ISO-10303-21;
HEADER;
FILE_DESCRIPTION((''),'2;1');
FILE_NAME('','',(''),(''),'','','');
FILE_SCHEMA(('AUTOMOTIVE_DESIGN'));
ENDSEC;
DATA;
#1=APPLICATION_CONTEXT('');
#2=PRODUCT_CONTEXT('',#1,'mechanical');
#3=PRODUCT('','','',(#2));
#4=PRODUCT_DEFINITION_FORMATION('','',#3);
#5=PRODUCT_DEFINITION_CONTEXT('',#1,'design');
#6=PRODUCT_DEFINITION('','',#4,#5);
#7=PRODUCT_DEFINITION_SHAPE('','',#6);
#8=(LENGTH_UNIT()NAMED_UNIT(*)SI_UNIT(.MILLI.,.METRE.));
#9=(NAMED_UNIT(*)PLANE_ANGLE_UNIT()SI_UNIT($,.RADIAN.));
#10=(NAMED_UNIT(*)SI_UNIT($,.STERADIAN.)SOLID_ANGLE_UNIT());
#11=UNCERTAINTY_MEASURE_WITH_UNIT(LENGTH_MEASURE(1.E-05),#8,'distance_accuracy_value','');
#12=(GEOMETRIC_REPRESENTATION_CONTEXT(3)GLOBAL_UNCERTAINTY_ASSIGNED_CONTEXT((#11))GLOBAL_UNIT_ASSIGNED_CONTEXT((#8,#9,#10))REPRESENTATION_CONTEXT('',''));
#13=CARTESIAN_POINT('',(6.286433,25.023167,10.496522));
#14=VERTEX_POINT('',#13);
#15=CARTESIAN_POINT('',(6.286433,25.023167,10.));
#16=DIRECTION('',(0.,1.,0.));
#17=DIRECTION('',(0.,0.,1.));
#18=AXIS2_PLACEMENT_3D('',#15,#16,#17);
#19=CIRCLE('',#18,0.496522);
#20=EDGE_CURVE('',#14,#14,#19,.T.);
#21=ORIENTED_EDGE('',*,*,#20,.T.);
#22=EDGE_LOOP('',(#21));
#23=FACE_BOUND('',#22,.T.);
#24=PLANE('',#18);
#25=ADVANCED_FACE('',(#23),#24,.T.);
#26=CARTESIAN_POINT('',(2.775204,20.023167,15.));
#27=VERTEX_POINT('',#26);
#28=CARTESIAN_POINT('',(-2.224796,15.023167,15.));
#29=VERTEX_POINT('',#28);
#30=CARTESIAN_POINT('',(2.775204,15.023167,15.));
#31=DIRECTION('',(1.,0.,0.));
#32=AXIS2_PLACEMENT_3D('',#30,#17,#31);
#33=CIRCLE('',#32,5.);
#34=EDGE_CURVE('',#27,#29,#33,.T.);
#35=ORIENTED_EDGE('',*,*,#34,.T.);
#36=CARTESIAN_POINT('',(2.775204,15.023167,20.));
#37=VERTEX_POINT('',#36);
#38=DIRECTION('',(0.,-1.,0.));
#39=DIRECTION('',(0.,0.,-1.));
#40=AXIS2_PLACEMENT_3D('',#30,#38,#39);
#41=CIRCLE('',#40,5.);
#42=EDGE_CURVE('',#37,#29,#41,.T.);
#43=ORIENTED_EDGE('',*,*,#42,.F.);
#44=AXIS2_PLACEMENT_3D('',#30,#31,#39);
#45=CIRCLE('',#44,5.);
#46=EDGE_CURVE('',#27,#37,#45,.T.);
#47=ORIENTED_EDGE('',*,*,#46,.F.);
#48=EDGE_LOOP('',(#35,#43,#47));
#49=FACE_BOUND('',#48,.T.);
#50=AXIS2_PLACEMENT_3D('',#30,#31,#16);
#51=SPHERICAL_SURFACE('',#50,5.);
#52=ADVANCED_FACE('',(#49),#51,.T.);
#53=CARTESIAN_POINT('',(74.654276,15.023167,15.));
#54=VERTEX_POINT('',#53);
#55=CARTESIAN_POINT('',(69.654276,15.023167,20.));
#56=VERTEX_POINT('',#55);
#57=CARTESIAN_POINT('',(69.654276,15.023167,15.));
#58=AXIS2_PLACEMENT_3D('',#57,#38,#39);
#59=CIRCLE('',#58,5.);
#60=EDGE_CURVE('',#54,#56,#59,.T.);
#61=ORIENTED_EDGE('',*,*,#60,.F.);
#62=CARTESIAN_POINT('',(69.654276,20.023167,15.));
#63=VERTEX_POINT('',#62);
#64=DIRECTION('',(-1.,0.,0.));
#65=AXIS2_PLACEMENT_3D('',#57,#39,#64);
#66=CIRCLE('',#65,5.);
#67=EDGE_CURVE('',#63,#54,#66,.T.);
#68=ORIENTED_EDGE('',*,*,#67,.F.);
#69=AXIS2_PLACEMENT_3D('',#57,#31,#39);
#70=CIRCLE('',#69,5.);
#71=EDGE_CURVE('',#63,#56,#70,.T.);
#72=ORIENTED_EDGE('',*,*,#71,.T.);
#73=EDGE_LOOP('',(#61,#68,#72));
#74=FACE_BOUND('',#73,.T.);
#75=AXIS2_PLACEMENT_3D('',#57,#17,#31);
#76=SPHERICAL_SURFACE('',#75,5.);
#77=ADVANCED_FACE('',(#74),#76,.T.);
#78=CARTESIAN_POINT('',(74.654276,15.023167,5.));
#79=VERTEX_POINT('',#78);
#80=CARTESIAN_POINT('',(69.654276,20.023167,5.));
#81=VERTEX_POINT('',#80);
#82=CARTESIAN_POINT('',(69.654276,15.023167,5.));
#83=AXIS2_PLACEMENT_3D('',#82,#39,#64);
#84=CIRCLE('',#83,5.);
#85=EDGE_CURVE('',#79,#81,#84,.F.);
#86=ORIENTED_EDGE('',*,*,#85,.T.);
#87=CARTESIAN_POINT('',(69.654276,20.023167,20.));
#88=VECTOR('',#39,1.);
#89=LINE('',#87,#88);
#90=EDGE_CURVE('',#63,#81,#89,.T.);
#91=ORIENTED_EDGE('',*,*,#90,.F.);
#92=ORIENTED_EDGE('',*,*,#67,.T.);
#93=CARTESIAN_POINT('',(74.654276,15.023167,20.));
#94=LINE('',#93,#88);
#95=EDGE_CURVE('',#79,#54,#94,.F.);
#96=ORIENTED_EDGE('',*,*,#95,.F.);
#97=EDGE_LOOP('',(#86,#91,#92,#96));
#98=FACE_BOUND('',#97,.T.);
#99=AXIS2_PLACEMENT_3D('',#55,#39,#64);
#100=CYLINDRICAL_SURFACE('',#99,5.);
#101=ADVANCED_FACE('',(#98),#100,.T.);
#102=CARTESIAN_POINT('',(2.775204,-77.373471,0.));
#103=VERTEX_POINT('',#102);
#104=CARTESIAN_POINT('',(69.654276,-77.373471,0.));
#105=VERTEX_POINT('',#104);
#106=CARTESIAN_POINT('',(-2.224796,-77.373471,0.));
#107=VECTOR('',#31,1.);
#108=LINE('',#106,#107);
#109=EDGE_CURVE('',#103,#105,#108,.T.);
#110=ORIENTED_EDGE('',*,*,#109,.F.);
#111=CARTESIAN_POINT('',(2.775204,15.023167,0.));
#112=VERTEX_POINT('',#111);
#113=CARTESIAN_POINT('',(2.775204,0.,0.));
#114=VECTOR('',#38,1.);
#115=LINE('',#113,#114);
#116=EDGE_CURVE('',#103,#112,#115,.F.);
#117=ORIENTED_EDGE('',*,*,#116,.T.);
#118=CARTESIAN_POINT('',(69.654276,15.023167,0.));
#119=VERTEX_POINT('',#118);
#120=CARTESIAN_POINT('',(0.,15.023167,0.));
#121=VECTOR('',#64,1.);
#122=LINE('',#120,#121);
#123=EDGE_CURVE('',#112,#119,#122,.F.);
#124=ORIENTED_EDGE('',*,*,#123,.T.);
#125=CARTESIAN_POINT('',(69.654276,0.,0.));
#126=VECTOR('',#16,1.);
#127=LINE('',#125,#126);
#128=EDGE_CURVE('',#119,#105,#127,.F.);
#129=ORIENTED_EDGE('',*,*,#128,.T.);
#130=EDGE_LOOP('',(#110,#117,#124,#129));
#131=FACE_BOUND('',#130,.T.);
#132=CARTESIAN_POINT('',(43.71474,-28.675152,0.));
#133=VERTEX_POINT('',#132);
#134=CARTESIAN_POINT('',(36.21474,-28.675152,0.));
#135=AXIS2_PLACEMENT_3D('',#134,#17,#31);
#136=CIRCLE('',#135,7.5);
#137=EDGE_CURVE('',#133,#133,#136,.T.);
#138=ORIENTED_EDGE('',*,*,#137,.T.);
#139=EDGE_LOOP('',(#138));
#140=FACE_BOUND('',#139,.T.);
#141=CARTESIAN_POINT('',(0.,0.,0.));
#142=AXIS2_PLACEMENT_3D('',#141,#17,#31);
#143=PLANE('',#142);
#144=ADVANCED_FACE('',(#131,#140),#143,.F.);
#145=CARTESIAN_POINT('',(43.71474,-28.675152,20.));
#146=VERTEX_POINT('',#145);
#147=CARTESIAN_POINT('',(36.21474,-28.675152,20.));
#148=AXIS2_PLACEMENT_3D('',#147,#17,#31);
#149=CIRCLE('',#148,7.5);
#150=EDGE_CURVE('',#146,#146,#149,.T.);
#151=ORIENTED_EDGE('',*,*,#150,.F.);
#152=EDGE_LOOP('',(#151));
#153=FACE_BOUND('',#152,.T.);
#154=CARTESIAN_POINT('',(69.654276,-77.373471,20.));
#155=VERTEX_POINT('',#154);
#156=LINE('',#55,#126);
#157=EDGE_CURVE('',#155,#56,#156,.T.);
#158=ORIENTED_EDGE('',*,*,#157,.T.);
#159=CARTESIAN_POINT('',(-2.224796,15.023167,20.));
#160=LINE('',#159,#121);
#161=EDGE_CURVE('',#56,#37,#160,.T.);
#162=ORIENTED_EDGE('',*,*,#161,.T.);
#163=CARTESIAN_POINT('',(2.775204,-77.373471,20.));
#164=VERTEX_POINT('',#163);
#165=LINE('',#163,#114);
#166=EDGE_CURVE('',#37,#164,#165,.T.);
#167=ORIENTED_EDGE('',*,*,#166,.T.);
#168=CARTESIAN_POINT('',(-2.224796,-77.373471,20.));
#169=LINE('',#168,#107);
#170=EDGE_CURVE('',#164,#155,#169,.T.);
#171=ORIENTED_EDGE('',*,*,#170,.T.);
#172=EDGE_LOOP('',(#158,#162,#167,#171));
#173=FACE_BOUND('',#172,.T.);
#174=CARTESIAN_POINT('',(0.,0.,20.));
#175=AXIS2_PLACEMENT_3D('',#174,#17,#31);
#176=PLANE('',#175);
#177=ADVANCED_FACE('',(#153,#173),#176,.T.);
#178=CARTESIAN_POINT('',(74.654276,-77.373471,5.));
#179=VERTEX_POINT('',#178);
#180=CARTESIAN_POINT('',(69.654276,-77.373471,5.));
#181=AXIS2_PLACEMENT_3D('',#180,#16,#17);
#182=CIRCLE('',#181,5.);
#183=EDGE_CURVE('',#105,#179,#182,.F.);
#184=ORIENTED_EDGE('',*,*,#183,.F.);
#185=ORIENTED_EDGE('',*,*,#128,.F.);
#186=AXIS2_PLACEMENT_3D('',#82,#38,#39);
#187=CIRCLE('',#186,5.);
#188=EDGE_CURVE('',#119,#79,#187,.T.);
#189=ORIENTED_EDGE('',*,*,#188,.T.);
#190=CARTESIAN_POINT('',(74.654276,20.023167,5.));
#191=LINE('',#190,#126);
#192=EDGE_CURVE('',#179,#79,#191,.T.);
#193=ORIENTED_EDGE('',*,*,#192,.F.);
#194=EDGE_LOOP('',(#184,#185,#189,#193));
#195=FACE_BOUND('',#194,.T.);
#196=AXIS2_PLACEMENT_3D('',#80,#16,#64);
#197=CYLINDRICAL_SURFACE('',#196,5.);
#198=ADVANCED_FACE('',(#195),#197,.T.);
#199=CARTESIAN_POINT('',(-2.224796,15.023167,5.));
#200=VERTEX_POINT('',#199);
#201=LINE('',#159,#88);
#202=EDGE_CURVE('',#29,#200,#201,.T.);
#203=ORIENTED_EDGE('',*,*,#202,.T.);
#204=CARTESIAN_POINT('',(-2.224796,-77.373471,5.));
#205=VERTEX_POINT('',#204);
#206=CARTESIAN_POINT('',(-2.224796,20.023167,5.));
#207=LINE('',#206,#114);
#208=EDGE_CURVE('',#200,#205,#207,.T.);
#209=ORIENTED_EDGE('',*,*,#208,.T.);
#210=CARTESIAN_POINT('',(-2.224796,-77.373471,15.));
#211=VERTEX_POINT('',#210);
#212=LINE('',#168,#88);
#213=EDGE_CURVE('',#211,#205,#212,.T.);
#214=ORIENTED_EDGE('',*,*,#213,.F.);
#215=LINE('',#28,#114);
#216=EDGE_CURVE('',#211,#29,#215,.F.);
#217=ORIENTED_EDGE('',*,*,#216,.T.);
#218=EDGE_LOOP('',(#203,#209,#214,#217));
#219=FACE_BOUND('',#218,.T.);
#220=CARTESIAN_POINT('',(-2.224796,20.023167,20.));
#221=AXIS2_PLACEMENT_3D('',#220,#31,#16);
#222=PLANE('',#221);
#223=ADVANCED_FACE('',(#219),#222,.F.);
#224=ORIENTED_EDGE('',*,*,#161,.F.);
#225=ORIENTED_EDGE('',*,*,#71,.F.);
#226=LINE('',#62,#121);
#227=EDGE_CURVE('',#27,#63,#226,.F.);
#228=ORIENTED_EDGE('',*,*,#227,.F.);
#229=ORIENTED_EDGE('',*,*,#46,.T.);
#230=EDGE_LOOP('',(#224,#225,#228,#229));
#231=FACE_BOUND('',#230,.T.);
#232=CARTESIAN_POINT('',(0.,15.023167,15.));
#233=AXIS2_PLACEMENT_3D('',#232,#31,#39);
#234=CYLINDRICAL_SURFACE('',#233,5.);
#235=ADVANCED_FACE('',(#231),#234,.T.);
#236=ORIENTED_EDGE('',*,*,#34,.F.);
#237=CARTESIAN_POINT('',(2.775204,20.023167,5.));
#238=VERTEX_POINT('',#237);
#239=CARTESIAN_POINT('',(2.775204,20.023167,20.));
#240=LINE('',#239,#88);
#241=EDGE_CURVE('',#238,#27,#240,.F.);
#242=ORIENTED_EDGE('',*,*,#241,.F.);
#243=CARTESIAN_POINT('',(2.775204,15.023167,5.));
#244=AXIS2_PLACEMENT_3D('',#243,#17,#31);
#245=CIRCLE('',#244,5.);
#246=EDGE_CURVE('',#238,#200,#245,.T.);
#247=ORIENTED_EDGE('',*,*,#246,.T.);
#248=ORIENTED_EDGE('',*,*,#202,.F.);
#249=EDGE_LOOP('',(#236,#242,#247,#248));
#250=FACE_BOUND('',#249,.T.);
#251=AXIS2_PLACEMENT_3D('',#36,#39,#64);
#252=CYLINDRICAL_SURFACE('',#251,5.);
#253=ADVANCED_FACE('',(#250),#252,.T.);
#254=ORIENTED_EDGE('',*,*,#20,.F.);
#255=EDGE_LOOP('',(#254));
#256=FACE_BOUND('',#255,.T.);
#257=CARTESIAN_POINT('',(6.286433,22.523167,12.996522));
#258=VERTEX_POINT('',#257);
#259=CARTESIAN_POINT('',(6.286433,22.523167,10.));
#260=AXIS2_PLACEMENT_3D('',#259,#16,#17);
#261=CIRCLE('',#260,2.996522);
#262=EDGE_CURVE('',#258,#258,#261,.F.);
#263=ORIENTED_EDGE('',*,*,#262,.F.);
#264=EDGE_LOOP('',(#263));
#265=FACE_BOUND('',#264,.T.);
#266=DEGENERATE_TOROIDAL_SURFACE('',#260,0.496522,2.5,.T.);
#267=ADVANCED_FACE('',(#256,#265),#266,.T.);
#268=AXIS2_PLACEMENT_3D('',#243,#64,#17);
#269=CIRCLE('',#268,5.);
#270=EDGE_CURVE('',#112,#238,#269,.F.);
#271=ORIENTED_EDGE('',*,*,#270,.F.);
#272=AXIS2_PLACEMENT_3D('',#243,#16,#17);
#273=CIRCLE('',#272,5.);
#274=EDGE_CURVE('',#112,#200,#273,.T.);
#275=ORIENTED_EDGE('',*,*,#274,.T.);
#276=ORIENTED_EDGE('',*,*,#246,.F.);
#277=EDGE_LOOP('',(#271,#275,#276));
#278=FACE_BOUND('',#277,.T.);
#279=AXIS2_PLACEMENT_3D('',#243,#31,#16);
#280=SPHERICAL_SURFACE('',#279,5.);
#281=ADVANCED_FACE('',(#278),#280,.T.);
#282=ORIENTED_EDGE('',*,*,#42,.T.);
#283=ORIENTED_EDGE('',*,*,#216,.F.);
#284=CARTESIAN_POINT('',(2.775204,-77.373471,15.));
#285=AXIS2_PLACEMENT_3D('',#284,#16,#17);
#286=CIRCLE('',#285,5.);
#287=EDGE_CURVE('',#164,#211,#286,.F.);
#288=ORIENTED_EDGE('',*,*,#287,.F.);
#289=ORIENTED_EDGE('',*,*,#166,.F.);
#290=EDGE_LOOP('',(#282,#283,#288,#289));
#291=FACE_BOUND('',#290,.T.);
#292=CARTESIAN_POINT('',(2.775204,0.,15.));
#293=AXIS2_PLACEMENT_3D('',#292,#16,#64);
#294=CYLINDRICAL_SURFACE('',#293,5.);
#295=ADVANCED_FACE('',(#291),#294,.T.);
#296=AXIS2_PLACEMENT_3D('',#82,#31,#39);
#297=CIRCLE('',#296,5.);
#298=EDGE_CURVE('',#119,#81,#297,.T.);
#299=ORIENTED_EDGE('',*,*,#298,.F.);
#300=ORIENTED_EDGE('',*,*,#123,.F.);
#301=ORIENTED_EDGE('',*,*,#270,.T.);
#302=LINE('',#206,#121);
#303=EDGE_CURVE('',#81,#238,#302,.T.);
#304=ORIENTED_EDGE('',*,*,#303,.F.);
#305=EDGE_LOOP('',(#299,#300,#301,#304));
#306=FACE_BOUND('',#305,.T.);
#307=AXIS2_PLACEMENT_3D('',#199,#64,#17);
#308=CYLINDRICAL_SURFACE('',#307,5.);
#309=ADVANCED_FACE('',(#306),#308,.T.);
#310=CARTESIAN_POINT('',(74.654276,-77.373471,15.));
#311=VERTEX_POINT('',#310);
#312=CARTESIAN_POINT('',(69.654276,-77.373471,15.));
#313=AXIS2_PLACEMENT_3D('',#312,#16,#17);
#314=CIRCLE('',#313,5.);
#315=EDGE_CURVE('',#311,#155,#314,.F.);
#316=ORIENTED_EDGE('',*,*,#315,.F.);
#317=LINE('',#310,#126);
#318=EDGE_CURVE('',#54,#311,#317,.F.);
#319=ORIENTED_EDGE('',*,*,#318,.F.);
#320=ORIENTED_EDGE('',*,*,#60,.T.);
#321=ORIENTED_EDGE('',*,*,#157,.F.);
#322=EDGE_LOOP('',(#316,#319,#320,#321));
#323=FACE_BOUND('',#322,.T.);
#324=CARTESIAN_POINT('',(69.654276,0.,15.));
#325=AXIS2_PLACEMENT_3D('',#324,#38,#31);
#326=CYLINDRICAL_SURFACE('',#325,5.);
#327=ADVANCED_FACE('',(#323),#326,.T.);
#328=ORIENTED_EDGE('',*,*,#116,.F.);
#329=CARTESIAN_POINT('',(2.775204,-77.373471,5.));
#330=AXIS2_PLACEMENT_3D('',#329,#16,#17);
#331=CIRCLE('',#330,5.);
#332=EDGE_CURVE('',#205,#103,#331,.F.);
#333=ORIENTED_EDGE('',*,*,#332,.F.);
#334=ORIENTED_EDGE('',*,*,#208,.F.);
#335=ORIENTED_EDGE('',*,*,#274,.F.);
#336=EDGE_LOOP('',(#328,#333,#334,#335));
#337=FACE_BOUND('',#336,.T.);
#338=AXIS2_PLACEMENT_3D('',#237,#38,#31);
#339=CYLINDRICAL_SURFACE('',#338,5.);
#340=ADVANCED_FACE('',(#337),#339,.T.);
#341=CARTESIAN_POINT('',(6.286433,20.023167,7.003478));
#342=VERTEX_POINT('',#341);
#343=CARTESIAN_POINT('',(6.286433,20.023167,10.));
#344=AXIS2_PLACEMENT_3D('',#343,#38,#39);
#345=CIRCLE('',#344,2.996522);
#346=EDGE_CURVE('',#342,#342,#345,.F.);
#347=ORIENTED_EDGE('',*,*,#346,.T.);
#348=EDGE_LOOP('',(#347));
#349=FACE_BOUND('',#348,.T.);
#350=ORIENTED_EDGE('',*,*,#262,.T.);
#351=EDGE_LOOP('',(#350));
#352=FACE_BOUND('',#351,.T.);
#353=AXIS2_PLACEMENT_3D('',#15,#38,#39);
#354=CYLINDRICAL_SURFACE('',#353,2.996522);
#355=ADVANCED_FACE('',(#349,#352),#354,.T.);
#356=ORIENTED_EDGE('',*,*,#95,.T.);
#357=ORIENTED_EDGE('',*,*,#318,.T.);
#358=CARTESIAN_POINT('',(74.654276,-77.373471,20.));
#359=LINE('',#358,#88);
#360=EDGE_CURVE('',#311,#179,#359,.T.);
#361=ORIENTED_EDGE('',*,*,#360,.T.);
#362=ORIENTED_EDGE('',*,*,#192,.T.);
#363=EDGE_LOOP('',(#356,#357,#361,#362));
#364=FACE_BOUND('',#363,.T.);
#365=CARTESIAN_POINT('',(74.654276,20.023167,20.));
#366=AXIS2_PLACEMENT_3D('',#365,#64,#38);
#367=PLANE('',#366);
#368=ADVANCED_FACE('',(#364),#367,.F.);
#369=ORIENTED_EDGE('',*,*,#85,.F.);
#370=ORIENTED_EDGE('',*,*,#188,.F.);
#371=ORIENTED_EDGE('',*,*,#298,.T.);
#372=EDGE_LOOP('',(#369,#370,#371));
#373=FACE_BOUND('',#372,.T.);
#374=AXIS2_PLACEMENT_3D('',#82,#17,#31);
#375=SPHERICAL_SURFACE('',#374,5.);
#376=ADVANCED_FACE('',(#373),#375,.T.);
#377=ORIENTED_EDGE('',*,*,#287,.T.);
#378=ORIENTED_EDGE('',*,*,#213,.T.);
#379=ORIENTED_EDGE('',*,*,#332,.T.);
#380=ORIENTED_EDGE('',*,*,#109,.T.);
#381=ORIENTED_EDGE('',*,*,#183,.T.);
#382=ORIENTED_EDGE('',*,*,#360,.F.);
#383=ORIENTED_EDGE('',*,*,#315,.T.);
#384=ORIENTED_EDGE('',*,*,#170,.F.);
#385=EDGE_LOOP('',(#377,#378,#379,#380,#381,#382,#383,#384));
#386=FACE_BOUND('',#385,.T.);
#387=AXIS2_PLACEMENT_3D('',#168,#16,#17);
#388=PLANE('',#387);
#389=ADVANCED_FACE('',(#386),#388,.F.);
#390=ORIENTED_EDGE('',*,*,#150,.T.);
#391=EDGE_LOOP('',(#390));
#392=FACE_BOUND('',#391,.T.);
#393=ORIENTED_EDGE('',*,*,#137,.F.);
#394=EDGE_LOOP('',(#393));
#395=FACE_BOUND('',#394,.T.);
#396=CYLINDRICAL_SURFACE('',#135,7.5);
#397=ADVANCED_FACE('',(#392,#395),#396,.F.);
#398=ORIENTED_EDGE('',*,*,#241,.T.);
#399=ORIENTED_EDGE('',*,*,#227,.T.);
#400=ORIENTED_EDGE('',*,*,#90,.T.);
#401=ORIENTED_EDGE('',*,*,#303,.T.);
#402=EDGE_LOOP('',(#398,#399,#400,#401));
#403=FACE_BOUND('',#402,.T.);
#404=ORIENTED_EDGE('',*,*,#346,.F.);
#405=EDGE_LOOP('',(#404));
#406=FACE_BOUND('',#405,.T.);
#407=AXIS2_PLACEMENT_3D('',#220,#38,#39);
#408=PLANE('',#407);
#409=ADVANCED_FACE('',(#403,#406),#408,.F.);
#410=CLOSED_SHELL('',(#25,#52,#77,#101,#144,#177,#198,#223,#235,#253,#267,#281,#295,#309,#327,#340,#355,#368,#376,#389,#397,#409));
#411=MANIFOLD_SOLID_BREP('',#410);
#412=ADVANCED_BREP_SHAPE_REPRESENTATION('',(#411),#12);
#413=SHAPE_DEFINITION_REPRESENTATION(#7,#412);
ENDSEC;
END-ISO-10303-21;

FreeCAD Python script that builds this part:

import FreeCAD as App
import Part
import Sketcher

V = App.Vector
Q = App.Units.Quantity


def edges_at(feature, points):
    """Names of the edges that pass closest to the given points."""
    edges = feature.Shape.Edges
    near = lambda p: min(range(len(edges)), key=lambda i: edges[i].distToShape(Part.Vertex(*p))[0])
    return sorted({f"Edge{near(p) + 1}" for p in points})

doc = App.newDocument("Part")
body = doc.addObject("PartDesign::Body", "Body")

# Sketch on XY plane
sketch1 = body.newObject("Sketcher::SketchObject", "Sketch")
sketch1.AttachmentSupport = (doc.getObject("XY_Plane"), [""])
sketch1.MapMode = "FlatFace"
sketch1.addGeometry(Part.LineSegment(V(-2.224796, 20.023167, 0), V(-2.224796, -77.373471, 0)), False)
sketch1.addGeometry(Part.LineSegment(V(-2.224796, -77.373471, 0), V(74.654276, -77.373471, 0)), False)
sketch1.addGeometry(Part.LineSegment(V(74.654276, -77.373471, 0), V(74.654276, 20.023167, 0)), False)
sketch1.addGeometry(Part.LineSegment(V(74.654276, 20.023167, 0), V(-2.224796, 20.023167, 0)), False)
sketch1.addConstraint(Sketcher.Constraint("Coincident", 0, 2, 1, 1))
sketch1.addConstraint(Sketcher.Constraint("Coincident", 1, 2, 2, 1))
sketch1.addConstraint(Sketcher.Constraint("Coincident", 2, 2, 3, 1))
sketch1.addConstraint(Sketcher.Constraint("Coincident", 3, 2, 0, 1))
sketch1.addConstraint(Sketcher.Constraint("Vertical", 0))
sketch1.addConstraint(Sketcher.Constraint("Horizontal", 1))
sketch1.addConstraint(Sketcher.Constraint("Vertical", 2))
sketch1.addConstraint(Sketcher.Constraint("Horizontal", 3))
sketch1.addConstraint(Sketcher.Constraint("DistanceX", 1, 1, 1, 2, Q("76.879072 mm")))
sketch1.addConstraint(Sketcher.Constraint("DistanceY", 0, 2, 0, 1, Q("97.396638 mm")))
sketch1.addConstraint(Sketcher.Constraint("DistanceY", 0, 2, -1, 1, Q("77.373471 mm")))
sketch1.addConstraint(Sketcher.Constraint("DistanceX", 0, 2, -1, 1, Q("2.224796 mm")))
pad1 = body.newObject("PartDesign::Pad", "Pad")
pad1.Profile = sketch1
pad1.Length = 20

# Sketch on XY plane
sketch2 = body.newObject("Sketcher::SketchObject", "Sketch001")
sketch2.AttachmentSupport = (doc.getObject("XY_Plane"), [""])
sketch2.MapMode = "FlatFace"
sketch2.AttachmentOffset = App.Placement(V(0, 0, 20), App.Rotation())
sketch2.addGeometry(Part.Circle(V(36.21474, -28.675152, 0), V(0, 0, 1), 7.5), False)
sketch2.addConstraint(Sketcher.Constraint("Diameter", 0, Q("15 mm")))
sketch2.addConstraint(Sketcher.Constraint("DistanceX", -1, 1, 0, 3, Q("36.21474 mm")))
sketch2.addConstraint(Sketcher.Constraint("DistanceY", 0, 3, -1, 1, Q("28.675152 mm")))
pocket1 = body.newObject("PartDesign::Pocket", "Pocket")
pocket1.Profile = sketch2
pocket1.Length = 20
doc.recompute()

fillet = body.newObject("PartDesign::Fillet", "Fillet")
fillet.Base = (pocket1, edges_at(pocket1, [(74.654, 20.023, 10)]))
fillet.Radius = 5
doc.recompute()

fillet2 = body.newObject("PartDesign::Fillet", "Fillet001")
fillet2.Base = (fillet, edges_at(fillet, [(74.654, -31.175, 20), (33.715, 20.023, 20), (73.19, 18.559, 20)]))
fillet2.Radius = 5
doc.recompute()

fillet3 = body.newObject("PartDesign::Fillet", "Fillet002")
fillet3.Base = (fillet2, edges_at(fillet2, [(33.715, 20.023, 0), (73.19, 18.559, 0), (74.654, -31.175, 0)]))
fillet3.Radius = 5
doc.recompute()

fillet4 = body.newObject("PartDesign::Fillet", "Fillet003")
fillet4.Base = (fillet3, edges_at(fillet3, [
    (-2.225, -31.175, 20),
    (-2.225, 20.023, 10),
    (-2.225, 18.559, 18.536),
    (-2.225, -31.175, 0),
    (-2.225, 18.559, 1.464),
]))
fillet4.Radius = 5

# Sketch on XZ plane
sketch3 = body.newObject("Sketcher::SketchObject", "Sketch002")
sketch3.AttachmentSupport = (doc.getObject("XZ_Plane"), [""])
sketch3.MapMode = "FlatFace"
sketch3.AttachmentOffset = App.Placement(V(0, 0, -20.023167), App.Rotation())
sketch3.addGeometry(Part.Circle(V(6.286433, 10, 0), V(0, 0, 1), 2.996522), False)
sketch3.addConstraint(Sketcher.Constraint("DistanceY", -1, 1, 0, 3, Q("10 mm")))
sketch3.addConstraint(Sketcher.Constraint("Diameter", 0, Q("5.993044 mm")))
sketch3.addConstraint(Sketcher.Constraint("DistanceX", -1, 1, 0, 3, Q("6.286433 mm")))
pad2 = body.newObject("PartDesign::Pad", "Pad001")
pad2.Profile = sketch3
pad2.Length = 5
pad2.Reversed = True
doc.recompute()

fillet5 = body.newObject("PartDesign::Fillet", "Fillet004")
fillet5.Base = (pad2, edges_at(pad2, [(6.286, 25.023, 12.997)]))
fillet5.Radius = 2.5

doc.recompute()
